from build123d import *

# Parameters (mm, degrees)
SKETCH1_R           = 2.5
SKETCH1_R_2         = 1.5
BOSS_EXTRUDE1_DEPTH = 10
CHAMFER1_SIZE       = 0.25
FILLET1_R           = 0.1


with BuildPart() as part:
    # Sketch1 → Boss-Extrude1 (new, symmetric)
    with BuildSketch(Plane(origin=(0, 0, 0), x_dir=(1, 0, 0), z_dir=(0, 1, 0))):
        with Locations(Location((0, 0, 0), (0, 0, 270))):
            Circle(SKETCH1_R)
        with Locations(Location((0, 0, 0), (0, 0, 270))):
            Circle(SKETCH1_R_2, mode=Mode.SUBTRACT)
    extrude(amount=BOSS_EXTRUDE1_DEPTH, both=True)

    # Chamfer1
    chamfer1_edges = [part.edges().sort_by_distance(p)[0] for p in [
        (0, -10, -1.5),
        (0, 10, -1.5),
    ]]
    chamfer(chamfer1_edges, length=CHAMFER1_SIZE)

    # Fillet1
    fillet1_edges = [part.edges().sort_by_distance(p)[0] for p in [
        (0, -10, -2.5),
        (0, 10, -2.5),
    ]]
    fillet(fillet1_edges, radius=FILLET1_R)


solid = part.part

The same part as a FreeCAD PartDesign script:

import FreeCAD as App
import Part
import Sketcher


def edges_at(feature, points):
    """Names of the edges that pass closest to the given points."""
    edges = feature.Shape.Edges
    near = lambda p: min(range(len(edges)), key=lambda i: edges[i].distToShape(Part.Vertex(*p))[0])
    return sorted({f"Edge{near(p) + 1}" for p in points})

doc = App.newDocument("Part")
body = doc.addObject("PartDesign::Body", "Body")

# Sketch on XZ plane
sketch1 = body.newObject("Sketcher::SketchObject", "Sketch")
sketch1.AttachmentSupport = (doc.getObject("XZ_Plane"), [""])
sketch1.MapMode = "FlatFace"
sketch1.addGeometry(Part.Circle(App.Vector(0, 0, 0), App.Vector(0, 0, 1), 2.5), False)
sketch1.addGeometry(Part.Circle(App.Vector(0, 0, 0), App.Vector(0, 0, 1), 1.5), False)
sketch1.addConstraint(Sketcher.Constraint("Coincident", 0, 3, -1, 1))
sketch1.addConstraint(Sketcher.Constraint("Coincident", 1, 3, -1, 1))
sketch1.addConstraint(Sketcher.Constraint("Diameter", 0, 5.0))
sketch1.addConstraint(Sketcher.Constraint("Diameter", 1, 3.0))
pad1 = body.newObject("PartDesign::Pad", "Pad")
pad1.Profile = sketch1
pad1.Length = 20
pad1.Midplane = True
doc.recompute()

chamfer = body.newObject("PartDesign::Chamfer", "Chamfer")
chamfer.Base = (pad1, edges_at(pad1, [(0, -10, -1.5), (0, 10, -1.5)]))
chamfer.Size = 0.25
doc.recompute()

fillet = body.newObject("PartDesign::Fillet", "Fillet")
fillet.Base = (chamfer, edges_at(chamfer, [(0, -10, -2.5), (0, 10, -2.5)]))
fillet.Radius = 0.1

doc.recompute()
